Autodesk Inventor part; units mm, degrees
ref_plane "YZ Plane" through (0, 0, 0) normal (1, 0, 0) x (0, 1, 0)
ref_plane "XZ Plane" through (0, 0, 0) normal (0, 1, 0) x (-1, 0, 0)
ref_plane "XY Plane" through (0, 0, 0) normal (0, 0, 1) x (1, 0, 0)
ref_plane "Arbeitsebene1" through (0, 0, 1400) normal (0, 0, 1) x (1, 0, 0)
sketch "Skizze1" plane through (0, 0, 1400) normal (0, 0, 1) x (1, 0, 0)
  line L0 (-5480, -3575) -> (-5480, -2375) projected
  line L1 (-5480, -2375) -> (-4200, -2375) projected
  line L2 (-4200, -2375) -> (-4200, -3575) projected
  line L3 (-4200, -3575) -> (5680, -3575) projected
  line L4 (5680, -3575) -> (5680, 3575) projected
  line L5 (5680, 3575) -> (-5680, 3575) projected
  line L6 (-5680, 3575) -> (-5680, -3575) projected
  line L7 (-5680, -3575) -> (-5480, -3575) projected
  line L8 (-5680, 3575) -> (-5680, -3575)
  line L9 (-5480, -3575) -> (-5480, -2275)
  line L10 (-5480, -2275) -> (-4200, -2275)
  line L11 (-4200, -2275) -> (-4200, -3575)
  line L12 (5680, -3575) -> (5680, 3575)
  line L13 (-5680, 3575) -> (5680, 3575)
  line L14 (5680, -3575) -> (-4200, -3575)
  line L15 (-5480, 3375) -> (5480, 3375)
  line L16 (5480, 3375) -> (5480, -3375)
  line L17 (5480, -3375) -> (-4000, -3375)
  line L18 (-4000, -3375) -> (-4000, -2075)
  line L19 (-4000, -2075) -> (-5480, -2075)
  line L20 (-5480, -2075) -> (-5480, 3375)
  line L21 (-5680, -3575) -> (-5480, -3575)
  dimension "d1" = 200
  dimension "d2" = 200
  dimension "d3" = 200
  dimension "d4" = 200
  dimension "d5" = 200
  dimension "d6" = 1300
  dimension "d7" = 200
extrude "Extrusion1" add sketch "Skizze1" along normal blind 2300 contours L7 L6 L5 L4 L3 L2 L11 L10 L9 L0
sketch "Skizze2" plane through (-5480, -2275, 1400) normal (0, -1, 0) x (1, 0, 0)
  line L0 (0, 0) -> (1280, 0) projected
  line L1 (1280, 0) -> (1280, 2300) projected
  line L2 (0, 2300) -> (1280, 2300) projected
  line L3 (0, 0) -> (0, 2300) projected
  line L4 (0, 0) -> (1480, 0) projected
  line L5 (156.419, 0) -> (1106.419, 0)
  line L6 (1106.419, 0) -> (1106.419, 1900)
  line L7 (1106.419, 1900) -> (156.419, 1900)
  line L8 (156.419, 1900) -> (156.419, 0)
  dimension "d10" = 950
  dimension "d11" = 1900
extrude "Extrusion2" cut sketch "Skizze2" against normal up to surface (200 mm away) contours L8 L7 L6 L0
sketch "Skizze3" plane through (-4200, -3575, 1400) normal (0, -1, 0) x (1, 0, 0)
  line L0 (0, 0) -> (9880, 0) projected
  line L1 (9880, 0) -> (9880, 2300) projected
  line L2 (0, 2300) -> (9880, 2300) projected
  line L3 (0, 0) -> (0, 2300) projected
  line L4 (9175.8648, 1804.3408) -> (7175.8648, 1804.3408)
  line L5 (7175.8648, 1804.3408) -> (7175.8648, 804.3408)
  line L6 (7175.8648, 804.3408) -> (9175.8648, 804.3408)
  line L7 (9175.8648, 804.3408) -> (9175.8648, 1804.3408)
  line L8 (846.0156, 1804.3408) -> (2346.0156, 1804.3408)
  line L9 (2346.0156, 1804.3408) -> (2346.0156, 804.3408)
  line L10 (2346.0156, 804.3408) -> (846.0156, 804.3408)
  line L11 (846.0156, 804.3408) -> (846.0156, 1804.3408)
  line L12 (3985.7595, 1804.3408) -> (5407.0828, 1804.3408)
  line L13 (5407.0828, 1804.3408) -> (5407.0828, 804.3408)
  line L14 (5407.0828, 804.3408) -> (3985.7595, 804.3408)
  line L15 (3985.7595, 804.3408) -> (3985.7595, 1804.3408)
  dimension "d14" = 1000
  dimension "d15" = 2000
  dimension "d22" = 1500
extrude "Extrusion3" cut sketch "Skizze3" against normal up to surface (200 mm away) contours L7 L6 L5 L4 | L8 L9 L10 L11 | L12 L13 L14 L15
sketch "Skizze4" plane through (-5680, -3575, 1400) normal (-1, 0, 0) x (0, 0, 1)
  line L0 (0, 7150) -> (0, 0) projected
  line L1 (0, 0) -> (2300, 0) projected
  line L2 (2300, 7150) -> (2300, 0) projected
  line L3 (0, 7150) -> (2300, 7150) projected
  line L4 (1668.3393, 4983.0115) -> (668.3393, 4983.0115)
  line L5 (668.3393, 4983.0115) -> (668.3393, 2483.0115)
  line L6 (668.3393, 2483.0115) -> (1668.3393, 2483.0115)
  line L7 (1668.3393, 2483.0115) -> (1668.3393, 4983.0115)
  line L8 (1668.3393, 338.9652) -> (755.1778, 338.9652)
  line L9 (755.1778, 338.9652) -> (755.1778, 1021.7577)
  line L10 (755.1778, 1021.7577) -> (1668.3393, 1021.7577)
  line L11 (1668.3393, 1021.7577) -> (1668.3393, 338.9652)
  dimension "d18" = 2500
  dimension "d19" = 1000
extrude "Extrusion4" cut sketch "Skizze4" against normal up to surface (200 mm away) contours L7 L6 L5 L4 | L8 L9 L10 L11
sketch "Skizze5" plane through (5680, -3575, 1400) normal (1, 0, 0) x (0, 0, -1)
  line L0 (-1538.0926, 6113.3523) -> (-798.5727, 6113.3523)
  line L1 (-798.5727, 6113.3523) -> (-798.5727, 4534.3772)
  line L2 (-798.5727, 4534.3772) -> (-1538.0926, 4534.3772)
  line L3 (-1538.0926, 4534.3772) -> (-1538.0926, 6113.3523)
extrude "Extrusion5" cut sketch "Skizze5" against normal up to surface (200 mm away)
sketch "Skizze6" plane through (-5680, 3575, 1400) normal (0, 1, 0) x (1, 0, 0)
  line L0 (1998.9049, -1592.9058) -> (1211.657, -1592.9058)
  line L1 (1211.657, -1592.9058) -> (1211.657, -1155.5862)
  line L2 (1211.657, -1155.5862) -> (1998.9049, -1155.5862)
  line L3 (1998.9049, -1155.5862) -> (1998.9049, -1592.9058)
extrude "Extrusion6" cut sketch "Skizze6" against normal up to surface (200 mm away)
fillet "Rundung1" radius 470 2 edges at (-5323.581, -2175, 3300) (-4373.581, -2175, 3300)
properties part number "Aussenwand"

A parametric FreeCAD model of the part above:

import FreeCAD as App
import Part
import Sketcher
from FreeCAD import Vector
Q = App.Units.Quantity


def edges_at(feature, points):
    """Names of the edges that pass closest to the given points."""
    edges = feature.Shape.Edges
    near = lambda p: min(range(len(edges)), key=lambda i: edges[i].distToShape(Part.Vertex(*p))[0])
    return sorted({f"Edge{near(p) + 1}" for p in points})

doc = App.newDocument("Part")
body = doc.addObject("PartDesign::Body", "Body")

# Sketch on XY plane
sketch1 = body.newObject("Sketcher::SketchObject", "Sketch")
sketch1.AttachmentSupport = (doc.getObject("XY_Plane"), [""])
sketch1.MapMode = "FlatFace"
sketch1.AttachmentOffset = App.Placement(Vector(0, 0, 1400), App.Rotation())
sketch1.addGeometry([
    Part.LineSegment(Vector(-5680, -3575, 0), Vector(-5480, -3575, 0)),  # 0
    Part.LineSegment(Vector(-5480, -3575, 0), Vector(-5480, -2275, 0)),  # 1
    Part.LineSegment(Vector(-5480, -2275, 0), Vector(-4200, -2275, 0)),  # 2
    Part.LineSegment(Vector(-4200, -2275, 0), Vector(-4200, -3575, 0)),  # 3
    Part.LineSegment(Vector(-4200, -3575, 0), Vector(5680, -3575, 0)),  # 4
    Part.LineSegment(Vector(5680, -3575, 0), Vector(5680, 3575, 0)),  # 5
    Part.LineSegment(Vector(5680, 3575, 0), Vector(-5680, 3575, 0)),  # 6
    Part.LineSegment(Vector(-5680, 3575, 0), Vector(-5680, -3575, 0)),  # 7
    Part.LineSegment(Vector(-5480, -2075, 0), Vector(-5480, 3375, 0)),  # 8
    Part.LineSegment(Vector(-5480, 3375, 0), Vector(5480, 3375, 0)),  # 9
    Part.LineSegment(Vector(5480, 3375, 0), Vector(5480, -3375, 0)),  # 10
    Part.LineSegment(Vector(5480, -3375, 0), Vector(-4000, -3375, 0)),  # 11
    Part.LineSegment(Vector(-4000, -3375, 0), Vector(-4000, -2075, 0)),  # 12
    Part.LineSegment(Vector(-4000, -2075, 0), Vector(-5480, -2075, 0)),  # 13
], False)
sketch1.addConstraint([
    Sketcher.Constraint("Coincident", 0, 2, 1, 1),
    Sketcher.Constraint("Coincident", 1, 2, 2, 1),
    Sketcher.Constraint("Coincident", 2, 2, 3, 1),
    Sketcher.Constraint("Coincident", 3, 2, 4, 1),
    Sketcher.Constraint("Coincident", 4, 2, 5, 1),
    Sketcher.Constraint("Coincident", 5, 2, 6, 1),
    Sketcher.Constraint("Coincident", 6, 2, 7, 1),
    Sketcher.Constraint("Coincident", 7, 2, 0, 1),
    Sketcher.Constraint("Coincident", 8, 2, 9, 1),
    Sketcher.Constraint("Coincident", 9, 2, 10, 1),
    Sketcher.Constraint("Coincident", 10, 2, 11, 1),
    Sketcher.Constraint("Coincident", 11, 2, 12, 1),
    Sketcher.Constraint("Coincident", 12, 2, 13, 1),
    Sketcher.Constraint("Coincident", 13, 2, 8, 1),
    Sketcher.Constraint("Horizontal", 0),
    Sketcher.Constraint("Vertical", 1),
    Sketcher.Constraint("Horizontal", 2),
    Sketcher.Constraint("Vertical", 3),
    Sketcher.Constraint("Horizontal", 4),
    Sketcher.Constraint("Vertical", 5),
    Sketcher.Constraint("Horizontal", 6),
    Sketcher.Constraint("Vertical", 7),
    Sketcher.Constraint("Vertical", 8),
    Sketcher.Constraint("Horizontal", 9),
    Sketcher.Constraint("Vertical", 10),
    Sketcher.Constraint("Horizontal", 11),
    Sketcher.Constraint("Vertical", 12),
    Sketcher.Constraint("Horizontal", 13),
    Sketcher.Constraint("Symmetric", 4, 2, 6, 2, -1, 1),
    Sketcher.Constraint("Symmetric", 8, 2, 10, 2, -1, 1),
    Sketcher.Constraint("Horizontal", 0, 2, 3, 2),
    Sketcher.Constraint("Vertical", 1, 2, 8, 2),
    Sketcher.Constraint("Equal", 3, 12),
    Sketcher.Constraint("DistanceX", 0, 1, 0, 2, Q("200 mm")),
    Sketcher.Constraint("DistanceY", 1, 1, 1, 2, Q("1300 mm")),
    Sketcher.Constraint("DistanceY", 8, 2, 6, 2, Q("200 mm")),
    Sketcher.Constraint("DistanceX", 3, 2, 11, 2, Q("200 mm")),
    Sketcher.Constraint("DistanceX", 2, 1, 2, 2, Q("1280 mm")),
    Sketcher.Constraint("DistanceX", 4, 1, 4, 2, Q("9880 mm")),
    Sketcher.Constraint("DistanceY", 5, 1, 5, 2, Q("7150 mm")),
])
pad1 = body.newObject("PartDesign::Pad", "Pad")
pad1.Profile = sketch1
pad1.Length = 2300

# Sketch on XZ plane
sketch2 = body.newObject("Sketcher::SketchObject", "Sketch001")
sketch2.AttachmentSupport = (doc.getObject("XZ_Plane"), [""])
sketch2.MapMode = "FlatFace"
sketch2.AttachmentOffset = App.Placement(Vector(0, 0, 2275), App.Rotation())
sketch2.addGeometry([
    Part.LineSegment(Vector(-5324, 3300, 0), Vector(-5324, 1400, 0)),
    Part.LineSegment(Vector(-5324, 1400, 0), Vector(-4374, 1400, 0)),
    Part.LineSegment(Vector(-4374, 1400, 0), Vector(-4374, 3300, 0)),
    Part.LineSegment(Vector(-4374, 3300, 0), Vector(-5324, 3300, 0)),
], False)
sketch2.addConstraint([
    Sketcher.Constraint("Coincident", 0, 2, 1, 1),
    Sketcher.Constraint("Coincident", 1, 2, 2, 1),
    Sketcher.Constraint("Coincident", 2, 2, 3, 1),
    Sketcher.Constraint("Coincident", 3, 2, 0, 1),
    Sketcher.Constraint("Vertical", 0),
    Sketcher.Constraint("Horizontal", 1),
    Sketcher.Constraint("Vertical", 2),
    Sketcher.Constraint("Horizontal", 3),
    Sketcher.Constraint("DistanceX", 1, 1, 1, 2, Q("950 mm")),
    Sketcher.Constraint("DistanceY", 0, 2, 0, 1, Q("1900 mm")),
    Sketcher.Constraint("DistanceY", -1, 1, 0, 2, Q("1400 mm")),
    Sketcher.Constraint("DistanceX", 0, 2, -1, 1, Q("5323.581 mm")),
])
pocket1 = body.newObject("PartDesign::Pocket", "Pocket")
pocket1.Profile = sketch2
pocket1.Length = 200

# Sketch on XZ plane
sketch3 = body.newObject("Sketcher::SketchObject", "Sketch002")
sketch3.AttachmentSupport = (doc.getObject("XZ_Plane"), [""])
sketch3.MapMode = "FlatFace"
sketch3.AttachmentOffset = App.Placement(Vector(0, 0, 3575), App.Rotation())
sketch3.addGeometry([
    Part.LineSegment(Vector(4976, 2204, 0), Vector(4976, 3204, 0)),  # 0
    Part.LineSegment(Vector(4976, 3204, 0), Vector(2976, 3204, 0)),  # 1
    Part.LineSegment(Vector(2976, 3204, 0), Vector(2976, 2204, 0)),  # 2
    Part.LineSegment(Vector(2976, 2204, 0), Vector(4976, 2204, 0)),  # 3
    Part.LineSegment(Vector(-1854, 3204, 0), Vector(-3354, 3204, 0)),  # 4
    Part.LineSegment(Vector(-3354, 3204, 0), Vector(-3354, 2204, 0)),  # 5
    Part.LineSegment(Vector(-3354, 2204, 0), Vector(-1854, 2204, 0)),  # 6
    Part.LineSegment(Vector(-1854, 2204, 0), Vector(-1854, 3204, 0)),  # 7
    Part.LineSegment(Vector(1207, 3204, 0), Vector(-214, 3204, 0)),  # 8
    Part.LineSegment(Vector(-214, 3204, 0), Vector(-214, 2204, 0)),  # 9
    Part.LineSegment(Vector(-214, 2204, 0), Vector(1207, 2204, 0)),  # 10
    Part.LineSegment(Vector(1207, 2204, 0), Vector(1207, 3204, 0)),  # 11
], False)
sketch3.addConstraint([
    Sketcher.Constraint("Coincident", 0, 2, 1, 1),
    Sketcher.Constraint("Coincident", 1, 2, 2, 1),
    Sketcher.Constraint("Coincident", 2, 2, 3, 1),
    Sketcher.Constraint("Coincident", 3, 2, 0, 1),
    Sketcher.Constraint("Coincident", 4, 2, 5, 1),
    Sketcher.Constraint("Coincident", 5, 2, 6, 1),
    Sketcher.Constraint("Coincident", 6, 2, 7, 1),
    Sketcher.Constraint("Coincident", 7, 2, 4, 1),
    Sketcher.Constraint("Coincident", 8, 2, 9, 1),
    Sketcher.Constraint("Coincident", 9, 2, 10, 1),
    Sketcher.Constraint("Coincident", 10, 2, 11, 1),
    Sketcher.Constraint("Coincident", 11, 2, 8, 1),
    Sketcher.Constraint("Vertical", 0),
    Sketcher.Constraint("Horizontal", 1),
    Sketcher.Constraint("Vertical", 2),
    Sketcher.Constraint("Horizontal", 3),
    Sketcher.Constraint("Horizontal", 4),
    Sketcher.Constraint("Vertical", 5),
    Sketcher.Constraint("Horizontal", 6),
    Sketcher.Constraint("Vertical", 7),
    Sketcher.Constraint("Horizontal", 8),
    Sketcher.Constraint("Vertical", 9),
    Sketcher.Constraint("Horizontal", 10),
    Sketcher.Constraint("Vertical", 11),
    Sketcher.Constraint("Horizontal", 1, 2, 4, 2),
    Sketcher.Constraint("Horizontal", 3, 2, 5, 2),
    Sketcher.Constraint("Horizontal", 7, 2, 8, 2),
    Sketcher.Constraint("Horizontal", 6, 2, 9, 2),
    Sketcher.Constraint("DistanceX", 1, 2, 1, 1, Q("2000 mm")),
    Sketcher.Constraint("DistanceX", 4, 2, 4, 1, Q("1500 mm")),
    Sketcher.Constraint("DistanceY", 0, 1, 0, 2, Q("1000 mm")),
    Sketcher.Constraint("DistanceX", 8, 2, 8, 1, Q("1421.3233 mm")),
    Sketcher.Constraint("DistanceX", 7, 2, 8, 2, Q("1639.744 mm")),
    Sketcher.Constraint("DistanceX", 10, 2, 2, 2, Q("1768.782 mm")),
    Sketcher.Constraint("DistanceX", -1, 1, 0, 2, Q("4975.8648 mm")),
    Sketcher.Constraint("DistanceY", -1, 1, 0, 2, Q("3204.3408 mm")),
])
pocket2 = body.newObject("PartDesign::Pocket", "Pocket001")
pocket2.Profile = sketch3
pocket2.Length = 200

# Sketch on YZ plane
sketch4 = body.newObject("Sketcher::SketchObject", "Sketch003")
sketch4.AttachmentSupport = (doc.getObject("YZ_Plane"), [""])
sketch4.MapMode = "FlatFace"
sketch4.AttachmentOffset = App.Placement(Vector(0, 0, -5680), App.Rotation())
sketch4.addGeometry([
    Part.LineSegment(Vector(-1092, 3068, 0), Vector(1408, 3068, 0)),  # 0
    Part.LineSegment(Vector(1408, 3068, 0), Vector(1408, 2068, 0)),  # 1
    Part.LineSegment(Vector(1408, 2068, 0), Vector(-1092, 2068, 0)),  # 2
    Part.LineSegment(Vector(-1092, 2068, 0), Vector(-1092, 3068, 0)),  # 3
    Part.LineSegment(Vector(-3236, 2155, 0), Vector(-3236, 3068, 0)),  # 4
    Part.LineSegment(Vector(-3236, 3068, 0), Vector(-2553, 3068, 0)),  # 5
    Part.LineSegment(Vector(-2553, 3068, 0), Vector(-2553, 2155, 0)),  # 6
    Part.LineSegment(Vector(-2553, 2155, 0), Vector(-3236, 2155, 0)),  # 7
], False)
sketch4.addConstraint([
    Sketcher.Constraint("Coincident", 0, 2, 1, 1),
    Sketcher.Constraint("Coincident", 1, 2, 2, 1),
    Sketcher.Constraint("Coincident", 2, 2, 3, 1),
    Sketcher.Constraint("Coincident", 3, 2, 0, 1),
    Sketcher.Constraint("Coincident", 4, 2, 5, 1),
    Sketcher.Constraint("Coincident", 5, 2, 6, 1),
    Sketcher.Constraint("Coincident", 6, 2, 7, 1),
    Sketcher.Constraint("Coincident", 7, 2, 4, 1),
    Sketcher.Constraint("Horizontal", 0),
    Sketcher.Constraint("Vertical", 1),
    Sketcher.Constraint("Horizontal", 2),
    Sketcher.Constraint("Vertical", 3),
    Sketcher.Constraint("Vertical", 4),
    Sketcher.Constraint("Horizontal", 5),
    Sketcher.Constraint("Vertical", 6),
    Sketcher.Constraint("Horizontal", 7),
    Sketcher.Constraint("Horizontal", 3, 2, 4, 2),
    Sketcher.Constraint("DistanceX", 0, 1, 0, 2, Q("2500 mm")),
    Sketcher.Constraint("DistanceY", 1, 2, 1, 1, Q("1000 mm")),
    Sketcher.Constraint("DistanceX", 5, 1, 5, 2, Q("682.7925 mm")),
    Sketcher.Constraint("DistanceY", 4, 1, 4, 2, Q("913.1615 mm")),
    Sketcher.Constraint("DistanceX", -1, 1, 0, 2, Q("1408.0115 mm")),
    Sketcher.Constraint("DistanceY", -1, 1, 0, 2, Q("3068.3393 mm")),
    Sketcher.Constraint("DistanceX", 4, 2, -1, 1, Q("3236.0348 mm")),
])
pocket3 = body.newObject("PartDesign::Pocket", "Pocket002")
pocket3.Profile = sketch4
pocket3.Length = 200
pocket3.Reversed = True

# Sketch on YZ plane
sketch5 = body.newObject("Sketcher::SketchObject", "Sketch004")
sketch5.AttachmentSupport = (doc.getObject("YZ_Plane"), [""])
sketch5.MapMode = "FlatFace"
sketch5.AttachmentOffset = App.Placement(Vector(0, 0, 5680), App.Rotation())
sketch5.addGeometry([
    Part.LineSegment(Vector(2538, 2199, 0), Vector(2538, 2938, 0)),
    Part.LineSegment(Vector(2538, 2938, 0), Vector(959, 2938, 0)),
    Part.LineSegment(Vector(959, 2938, 0), Vector(959, 2199, 0)),
    Part.LineSegment(Vector(959, 2199, 0), Vector(2538, 2199, 0)),
], False)
sketch5.addConstraint([
    Sketcher.Constraint("Coincident", 0, 2, 1, 1),
    Sketcher.Constraint("Coincident", 1, 2, 2, 1),
    Sketcher.Constraint("Coincident", 2, 2, 3, 1),
    Sketcher.Constraint("Coincident", 3, 2, 0, 1),
    Sketcher.Constraint("Vertical", 0),
    Sketcher.Constraint("Horizontal", 1),
    Sketcher.Constraint("Vertical", 2),
    Sketcher.Constraint("Horizontal", 3),
    Sketcher.Constraint("DistanceY", 0, 1, 0, 2, Q("739.52 mm")),
    Sketcher.Constraint("DistanceX", 1, 2, 1, 1, Q("1578.975 mm")),
    Sketcher.Constraint("DistanceX", -1, 1, 0, 2, Q("2538.3523 mm")),
    Sketcher.Constraint("DistanceY", -1, 1, 0, 2, Q("2938.0926 mm")),
])
pocket4 = body.newObject("PartDesign::Pocket", "Pocket003")
pocket4.Profile = sketch5
pocket4.Length = 200

# Sketch on XZ plane
sketch6 = body.newObject("Sketcher::SketchObject", "Sketch005")
sketch6.AttachmentSupport = (doc.getObject("XZ_Plane"), [""])
sketch6.MapMode = "FlatFace"
sketch6.AttachmentOffset = App.Placement(Vector(0, 0, -3575), App.Rotation())
sketch6.addGeometry([
    Part.LineSegment(Vector(-4468, 2993, 0), Vector(-3681, 2993, 0)),
    Part.LineSegment(Vector(-3681, 2993, 0), Vector(-3681, 2556, 0)),
    Part.LineSegment(Vector(-3681, 2556, 0), Vector(-4468, 2556, 0)),
    Part.LineSegment(Vector(-4468, 2556, 0), Vector(-4468, 2993, 0)),
], False)
sketch6.addConstraint([
    Sketcher.Constraint("Coincident", 0, 2, 1, 1),
    Sketcher.Constraint("Coincident", 1, 2, 2, 1),
    Sketcher.Constraint("Coincident", 2, 2, 3, 1),
    Sketcher.Constraint("Coincident", 3, 2, 0, 1),
    Sketcher.Constraint("Horizontal", 0),
    Sketcher.Constraint("Vertical", 1),
    Sketcher.Constraint("Horizontal", 2),
    Sketcher.Constraint("Vertical", 3),
    Sketcher.Constraint("DistanceX", 0, 1, 0, 2, Q("787.248 mm")),
    Sketcher.Constraint("DistanceY", 1, 2, 1, 1, Q("437.3196 mm")),
    Sketcher.Constraint("DistanceX", 0, 2, -1, 1, Q("3681.095 mm")),
    Sketcher.Constraint("DistanceY", -1, 1, 0, 2, Q("2992.9058 mm")),
])
pocket5 = body.newObject("PartDesign::Pocket", "Pocket004")
pocket5.Profile = sketch6
pocket5.Length = 200
pocket5.Reversed = True
doc.recompute()

fillet = body.newObject("PartDesign::Fillet", "Fillet")
fillet.Base = (pocket5, edges_at(pocket5, [(-5323.581, -2175, 3300), (-4373.581, -2175, 3300)]))
fillet.Radius = 470

doc.recompute()
